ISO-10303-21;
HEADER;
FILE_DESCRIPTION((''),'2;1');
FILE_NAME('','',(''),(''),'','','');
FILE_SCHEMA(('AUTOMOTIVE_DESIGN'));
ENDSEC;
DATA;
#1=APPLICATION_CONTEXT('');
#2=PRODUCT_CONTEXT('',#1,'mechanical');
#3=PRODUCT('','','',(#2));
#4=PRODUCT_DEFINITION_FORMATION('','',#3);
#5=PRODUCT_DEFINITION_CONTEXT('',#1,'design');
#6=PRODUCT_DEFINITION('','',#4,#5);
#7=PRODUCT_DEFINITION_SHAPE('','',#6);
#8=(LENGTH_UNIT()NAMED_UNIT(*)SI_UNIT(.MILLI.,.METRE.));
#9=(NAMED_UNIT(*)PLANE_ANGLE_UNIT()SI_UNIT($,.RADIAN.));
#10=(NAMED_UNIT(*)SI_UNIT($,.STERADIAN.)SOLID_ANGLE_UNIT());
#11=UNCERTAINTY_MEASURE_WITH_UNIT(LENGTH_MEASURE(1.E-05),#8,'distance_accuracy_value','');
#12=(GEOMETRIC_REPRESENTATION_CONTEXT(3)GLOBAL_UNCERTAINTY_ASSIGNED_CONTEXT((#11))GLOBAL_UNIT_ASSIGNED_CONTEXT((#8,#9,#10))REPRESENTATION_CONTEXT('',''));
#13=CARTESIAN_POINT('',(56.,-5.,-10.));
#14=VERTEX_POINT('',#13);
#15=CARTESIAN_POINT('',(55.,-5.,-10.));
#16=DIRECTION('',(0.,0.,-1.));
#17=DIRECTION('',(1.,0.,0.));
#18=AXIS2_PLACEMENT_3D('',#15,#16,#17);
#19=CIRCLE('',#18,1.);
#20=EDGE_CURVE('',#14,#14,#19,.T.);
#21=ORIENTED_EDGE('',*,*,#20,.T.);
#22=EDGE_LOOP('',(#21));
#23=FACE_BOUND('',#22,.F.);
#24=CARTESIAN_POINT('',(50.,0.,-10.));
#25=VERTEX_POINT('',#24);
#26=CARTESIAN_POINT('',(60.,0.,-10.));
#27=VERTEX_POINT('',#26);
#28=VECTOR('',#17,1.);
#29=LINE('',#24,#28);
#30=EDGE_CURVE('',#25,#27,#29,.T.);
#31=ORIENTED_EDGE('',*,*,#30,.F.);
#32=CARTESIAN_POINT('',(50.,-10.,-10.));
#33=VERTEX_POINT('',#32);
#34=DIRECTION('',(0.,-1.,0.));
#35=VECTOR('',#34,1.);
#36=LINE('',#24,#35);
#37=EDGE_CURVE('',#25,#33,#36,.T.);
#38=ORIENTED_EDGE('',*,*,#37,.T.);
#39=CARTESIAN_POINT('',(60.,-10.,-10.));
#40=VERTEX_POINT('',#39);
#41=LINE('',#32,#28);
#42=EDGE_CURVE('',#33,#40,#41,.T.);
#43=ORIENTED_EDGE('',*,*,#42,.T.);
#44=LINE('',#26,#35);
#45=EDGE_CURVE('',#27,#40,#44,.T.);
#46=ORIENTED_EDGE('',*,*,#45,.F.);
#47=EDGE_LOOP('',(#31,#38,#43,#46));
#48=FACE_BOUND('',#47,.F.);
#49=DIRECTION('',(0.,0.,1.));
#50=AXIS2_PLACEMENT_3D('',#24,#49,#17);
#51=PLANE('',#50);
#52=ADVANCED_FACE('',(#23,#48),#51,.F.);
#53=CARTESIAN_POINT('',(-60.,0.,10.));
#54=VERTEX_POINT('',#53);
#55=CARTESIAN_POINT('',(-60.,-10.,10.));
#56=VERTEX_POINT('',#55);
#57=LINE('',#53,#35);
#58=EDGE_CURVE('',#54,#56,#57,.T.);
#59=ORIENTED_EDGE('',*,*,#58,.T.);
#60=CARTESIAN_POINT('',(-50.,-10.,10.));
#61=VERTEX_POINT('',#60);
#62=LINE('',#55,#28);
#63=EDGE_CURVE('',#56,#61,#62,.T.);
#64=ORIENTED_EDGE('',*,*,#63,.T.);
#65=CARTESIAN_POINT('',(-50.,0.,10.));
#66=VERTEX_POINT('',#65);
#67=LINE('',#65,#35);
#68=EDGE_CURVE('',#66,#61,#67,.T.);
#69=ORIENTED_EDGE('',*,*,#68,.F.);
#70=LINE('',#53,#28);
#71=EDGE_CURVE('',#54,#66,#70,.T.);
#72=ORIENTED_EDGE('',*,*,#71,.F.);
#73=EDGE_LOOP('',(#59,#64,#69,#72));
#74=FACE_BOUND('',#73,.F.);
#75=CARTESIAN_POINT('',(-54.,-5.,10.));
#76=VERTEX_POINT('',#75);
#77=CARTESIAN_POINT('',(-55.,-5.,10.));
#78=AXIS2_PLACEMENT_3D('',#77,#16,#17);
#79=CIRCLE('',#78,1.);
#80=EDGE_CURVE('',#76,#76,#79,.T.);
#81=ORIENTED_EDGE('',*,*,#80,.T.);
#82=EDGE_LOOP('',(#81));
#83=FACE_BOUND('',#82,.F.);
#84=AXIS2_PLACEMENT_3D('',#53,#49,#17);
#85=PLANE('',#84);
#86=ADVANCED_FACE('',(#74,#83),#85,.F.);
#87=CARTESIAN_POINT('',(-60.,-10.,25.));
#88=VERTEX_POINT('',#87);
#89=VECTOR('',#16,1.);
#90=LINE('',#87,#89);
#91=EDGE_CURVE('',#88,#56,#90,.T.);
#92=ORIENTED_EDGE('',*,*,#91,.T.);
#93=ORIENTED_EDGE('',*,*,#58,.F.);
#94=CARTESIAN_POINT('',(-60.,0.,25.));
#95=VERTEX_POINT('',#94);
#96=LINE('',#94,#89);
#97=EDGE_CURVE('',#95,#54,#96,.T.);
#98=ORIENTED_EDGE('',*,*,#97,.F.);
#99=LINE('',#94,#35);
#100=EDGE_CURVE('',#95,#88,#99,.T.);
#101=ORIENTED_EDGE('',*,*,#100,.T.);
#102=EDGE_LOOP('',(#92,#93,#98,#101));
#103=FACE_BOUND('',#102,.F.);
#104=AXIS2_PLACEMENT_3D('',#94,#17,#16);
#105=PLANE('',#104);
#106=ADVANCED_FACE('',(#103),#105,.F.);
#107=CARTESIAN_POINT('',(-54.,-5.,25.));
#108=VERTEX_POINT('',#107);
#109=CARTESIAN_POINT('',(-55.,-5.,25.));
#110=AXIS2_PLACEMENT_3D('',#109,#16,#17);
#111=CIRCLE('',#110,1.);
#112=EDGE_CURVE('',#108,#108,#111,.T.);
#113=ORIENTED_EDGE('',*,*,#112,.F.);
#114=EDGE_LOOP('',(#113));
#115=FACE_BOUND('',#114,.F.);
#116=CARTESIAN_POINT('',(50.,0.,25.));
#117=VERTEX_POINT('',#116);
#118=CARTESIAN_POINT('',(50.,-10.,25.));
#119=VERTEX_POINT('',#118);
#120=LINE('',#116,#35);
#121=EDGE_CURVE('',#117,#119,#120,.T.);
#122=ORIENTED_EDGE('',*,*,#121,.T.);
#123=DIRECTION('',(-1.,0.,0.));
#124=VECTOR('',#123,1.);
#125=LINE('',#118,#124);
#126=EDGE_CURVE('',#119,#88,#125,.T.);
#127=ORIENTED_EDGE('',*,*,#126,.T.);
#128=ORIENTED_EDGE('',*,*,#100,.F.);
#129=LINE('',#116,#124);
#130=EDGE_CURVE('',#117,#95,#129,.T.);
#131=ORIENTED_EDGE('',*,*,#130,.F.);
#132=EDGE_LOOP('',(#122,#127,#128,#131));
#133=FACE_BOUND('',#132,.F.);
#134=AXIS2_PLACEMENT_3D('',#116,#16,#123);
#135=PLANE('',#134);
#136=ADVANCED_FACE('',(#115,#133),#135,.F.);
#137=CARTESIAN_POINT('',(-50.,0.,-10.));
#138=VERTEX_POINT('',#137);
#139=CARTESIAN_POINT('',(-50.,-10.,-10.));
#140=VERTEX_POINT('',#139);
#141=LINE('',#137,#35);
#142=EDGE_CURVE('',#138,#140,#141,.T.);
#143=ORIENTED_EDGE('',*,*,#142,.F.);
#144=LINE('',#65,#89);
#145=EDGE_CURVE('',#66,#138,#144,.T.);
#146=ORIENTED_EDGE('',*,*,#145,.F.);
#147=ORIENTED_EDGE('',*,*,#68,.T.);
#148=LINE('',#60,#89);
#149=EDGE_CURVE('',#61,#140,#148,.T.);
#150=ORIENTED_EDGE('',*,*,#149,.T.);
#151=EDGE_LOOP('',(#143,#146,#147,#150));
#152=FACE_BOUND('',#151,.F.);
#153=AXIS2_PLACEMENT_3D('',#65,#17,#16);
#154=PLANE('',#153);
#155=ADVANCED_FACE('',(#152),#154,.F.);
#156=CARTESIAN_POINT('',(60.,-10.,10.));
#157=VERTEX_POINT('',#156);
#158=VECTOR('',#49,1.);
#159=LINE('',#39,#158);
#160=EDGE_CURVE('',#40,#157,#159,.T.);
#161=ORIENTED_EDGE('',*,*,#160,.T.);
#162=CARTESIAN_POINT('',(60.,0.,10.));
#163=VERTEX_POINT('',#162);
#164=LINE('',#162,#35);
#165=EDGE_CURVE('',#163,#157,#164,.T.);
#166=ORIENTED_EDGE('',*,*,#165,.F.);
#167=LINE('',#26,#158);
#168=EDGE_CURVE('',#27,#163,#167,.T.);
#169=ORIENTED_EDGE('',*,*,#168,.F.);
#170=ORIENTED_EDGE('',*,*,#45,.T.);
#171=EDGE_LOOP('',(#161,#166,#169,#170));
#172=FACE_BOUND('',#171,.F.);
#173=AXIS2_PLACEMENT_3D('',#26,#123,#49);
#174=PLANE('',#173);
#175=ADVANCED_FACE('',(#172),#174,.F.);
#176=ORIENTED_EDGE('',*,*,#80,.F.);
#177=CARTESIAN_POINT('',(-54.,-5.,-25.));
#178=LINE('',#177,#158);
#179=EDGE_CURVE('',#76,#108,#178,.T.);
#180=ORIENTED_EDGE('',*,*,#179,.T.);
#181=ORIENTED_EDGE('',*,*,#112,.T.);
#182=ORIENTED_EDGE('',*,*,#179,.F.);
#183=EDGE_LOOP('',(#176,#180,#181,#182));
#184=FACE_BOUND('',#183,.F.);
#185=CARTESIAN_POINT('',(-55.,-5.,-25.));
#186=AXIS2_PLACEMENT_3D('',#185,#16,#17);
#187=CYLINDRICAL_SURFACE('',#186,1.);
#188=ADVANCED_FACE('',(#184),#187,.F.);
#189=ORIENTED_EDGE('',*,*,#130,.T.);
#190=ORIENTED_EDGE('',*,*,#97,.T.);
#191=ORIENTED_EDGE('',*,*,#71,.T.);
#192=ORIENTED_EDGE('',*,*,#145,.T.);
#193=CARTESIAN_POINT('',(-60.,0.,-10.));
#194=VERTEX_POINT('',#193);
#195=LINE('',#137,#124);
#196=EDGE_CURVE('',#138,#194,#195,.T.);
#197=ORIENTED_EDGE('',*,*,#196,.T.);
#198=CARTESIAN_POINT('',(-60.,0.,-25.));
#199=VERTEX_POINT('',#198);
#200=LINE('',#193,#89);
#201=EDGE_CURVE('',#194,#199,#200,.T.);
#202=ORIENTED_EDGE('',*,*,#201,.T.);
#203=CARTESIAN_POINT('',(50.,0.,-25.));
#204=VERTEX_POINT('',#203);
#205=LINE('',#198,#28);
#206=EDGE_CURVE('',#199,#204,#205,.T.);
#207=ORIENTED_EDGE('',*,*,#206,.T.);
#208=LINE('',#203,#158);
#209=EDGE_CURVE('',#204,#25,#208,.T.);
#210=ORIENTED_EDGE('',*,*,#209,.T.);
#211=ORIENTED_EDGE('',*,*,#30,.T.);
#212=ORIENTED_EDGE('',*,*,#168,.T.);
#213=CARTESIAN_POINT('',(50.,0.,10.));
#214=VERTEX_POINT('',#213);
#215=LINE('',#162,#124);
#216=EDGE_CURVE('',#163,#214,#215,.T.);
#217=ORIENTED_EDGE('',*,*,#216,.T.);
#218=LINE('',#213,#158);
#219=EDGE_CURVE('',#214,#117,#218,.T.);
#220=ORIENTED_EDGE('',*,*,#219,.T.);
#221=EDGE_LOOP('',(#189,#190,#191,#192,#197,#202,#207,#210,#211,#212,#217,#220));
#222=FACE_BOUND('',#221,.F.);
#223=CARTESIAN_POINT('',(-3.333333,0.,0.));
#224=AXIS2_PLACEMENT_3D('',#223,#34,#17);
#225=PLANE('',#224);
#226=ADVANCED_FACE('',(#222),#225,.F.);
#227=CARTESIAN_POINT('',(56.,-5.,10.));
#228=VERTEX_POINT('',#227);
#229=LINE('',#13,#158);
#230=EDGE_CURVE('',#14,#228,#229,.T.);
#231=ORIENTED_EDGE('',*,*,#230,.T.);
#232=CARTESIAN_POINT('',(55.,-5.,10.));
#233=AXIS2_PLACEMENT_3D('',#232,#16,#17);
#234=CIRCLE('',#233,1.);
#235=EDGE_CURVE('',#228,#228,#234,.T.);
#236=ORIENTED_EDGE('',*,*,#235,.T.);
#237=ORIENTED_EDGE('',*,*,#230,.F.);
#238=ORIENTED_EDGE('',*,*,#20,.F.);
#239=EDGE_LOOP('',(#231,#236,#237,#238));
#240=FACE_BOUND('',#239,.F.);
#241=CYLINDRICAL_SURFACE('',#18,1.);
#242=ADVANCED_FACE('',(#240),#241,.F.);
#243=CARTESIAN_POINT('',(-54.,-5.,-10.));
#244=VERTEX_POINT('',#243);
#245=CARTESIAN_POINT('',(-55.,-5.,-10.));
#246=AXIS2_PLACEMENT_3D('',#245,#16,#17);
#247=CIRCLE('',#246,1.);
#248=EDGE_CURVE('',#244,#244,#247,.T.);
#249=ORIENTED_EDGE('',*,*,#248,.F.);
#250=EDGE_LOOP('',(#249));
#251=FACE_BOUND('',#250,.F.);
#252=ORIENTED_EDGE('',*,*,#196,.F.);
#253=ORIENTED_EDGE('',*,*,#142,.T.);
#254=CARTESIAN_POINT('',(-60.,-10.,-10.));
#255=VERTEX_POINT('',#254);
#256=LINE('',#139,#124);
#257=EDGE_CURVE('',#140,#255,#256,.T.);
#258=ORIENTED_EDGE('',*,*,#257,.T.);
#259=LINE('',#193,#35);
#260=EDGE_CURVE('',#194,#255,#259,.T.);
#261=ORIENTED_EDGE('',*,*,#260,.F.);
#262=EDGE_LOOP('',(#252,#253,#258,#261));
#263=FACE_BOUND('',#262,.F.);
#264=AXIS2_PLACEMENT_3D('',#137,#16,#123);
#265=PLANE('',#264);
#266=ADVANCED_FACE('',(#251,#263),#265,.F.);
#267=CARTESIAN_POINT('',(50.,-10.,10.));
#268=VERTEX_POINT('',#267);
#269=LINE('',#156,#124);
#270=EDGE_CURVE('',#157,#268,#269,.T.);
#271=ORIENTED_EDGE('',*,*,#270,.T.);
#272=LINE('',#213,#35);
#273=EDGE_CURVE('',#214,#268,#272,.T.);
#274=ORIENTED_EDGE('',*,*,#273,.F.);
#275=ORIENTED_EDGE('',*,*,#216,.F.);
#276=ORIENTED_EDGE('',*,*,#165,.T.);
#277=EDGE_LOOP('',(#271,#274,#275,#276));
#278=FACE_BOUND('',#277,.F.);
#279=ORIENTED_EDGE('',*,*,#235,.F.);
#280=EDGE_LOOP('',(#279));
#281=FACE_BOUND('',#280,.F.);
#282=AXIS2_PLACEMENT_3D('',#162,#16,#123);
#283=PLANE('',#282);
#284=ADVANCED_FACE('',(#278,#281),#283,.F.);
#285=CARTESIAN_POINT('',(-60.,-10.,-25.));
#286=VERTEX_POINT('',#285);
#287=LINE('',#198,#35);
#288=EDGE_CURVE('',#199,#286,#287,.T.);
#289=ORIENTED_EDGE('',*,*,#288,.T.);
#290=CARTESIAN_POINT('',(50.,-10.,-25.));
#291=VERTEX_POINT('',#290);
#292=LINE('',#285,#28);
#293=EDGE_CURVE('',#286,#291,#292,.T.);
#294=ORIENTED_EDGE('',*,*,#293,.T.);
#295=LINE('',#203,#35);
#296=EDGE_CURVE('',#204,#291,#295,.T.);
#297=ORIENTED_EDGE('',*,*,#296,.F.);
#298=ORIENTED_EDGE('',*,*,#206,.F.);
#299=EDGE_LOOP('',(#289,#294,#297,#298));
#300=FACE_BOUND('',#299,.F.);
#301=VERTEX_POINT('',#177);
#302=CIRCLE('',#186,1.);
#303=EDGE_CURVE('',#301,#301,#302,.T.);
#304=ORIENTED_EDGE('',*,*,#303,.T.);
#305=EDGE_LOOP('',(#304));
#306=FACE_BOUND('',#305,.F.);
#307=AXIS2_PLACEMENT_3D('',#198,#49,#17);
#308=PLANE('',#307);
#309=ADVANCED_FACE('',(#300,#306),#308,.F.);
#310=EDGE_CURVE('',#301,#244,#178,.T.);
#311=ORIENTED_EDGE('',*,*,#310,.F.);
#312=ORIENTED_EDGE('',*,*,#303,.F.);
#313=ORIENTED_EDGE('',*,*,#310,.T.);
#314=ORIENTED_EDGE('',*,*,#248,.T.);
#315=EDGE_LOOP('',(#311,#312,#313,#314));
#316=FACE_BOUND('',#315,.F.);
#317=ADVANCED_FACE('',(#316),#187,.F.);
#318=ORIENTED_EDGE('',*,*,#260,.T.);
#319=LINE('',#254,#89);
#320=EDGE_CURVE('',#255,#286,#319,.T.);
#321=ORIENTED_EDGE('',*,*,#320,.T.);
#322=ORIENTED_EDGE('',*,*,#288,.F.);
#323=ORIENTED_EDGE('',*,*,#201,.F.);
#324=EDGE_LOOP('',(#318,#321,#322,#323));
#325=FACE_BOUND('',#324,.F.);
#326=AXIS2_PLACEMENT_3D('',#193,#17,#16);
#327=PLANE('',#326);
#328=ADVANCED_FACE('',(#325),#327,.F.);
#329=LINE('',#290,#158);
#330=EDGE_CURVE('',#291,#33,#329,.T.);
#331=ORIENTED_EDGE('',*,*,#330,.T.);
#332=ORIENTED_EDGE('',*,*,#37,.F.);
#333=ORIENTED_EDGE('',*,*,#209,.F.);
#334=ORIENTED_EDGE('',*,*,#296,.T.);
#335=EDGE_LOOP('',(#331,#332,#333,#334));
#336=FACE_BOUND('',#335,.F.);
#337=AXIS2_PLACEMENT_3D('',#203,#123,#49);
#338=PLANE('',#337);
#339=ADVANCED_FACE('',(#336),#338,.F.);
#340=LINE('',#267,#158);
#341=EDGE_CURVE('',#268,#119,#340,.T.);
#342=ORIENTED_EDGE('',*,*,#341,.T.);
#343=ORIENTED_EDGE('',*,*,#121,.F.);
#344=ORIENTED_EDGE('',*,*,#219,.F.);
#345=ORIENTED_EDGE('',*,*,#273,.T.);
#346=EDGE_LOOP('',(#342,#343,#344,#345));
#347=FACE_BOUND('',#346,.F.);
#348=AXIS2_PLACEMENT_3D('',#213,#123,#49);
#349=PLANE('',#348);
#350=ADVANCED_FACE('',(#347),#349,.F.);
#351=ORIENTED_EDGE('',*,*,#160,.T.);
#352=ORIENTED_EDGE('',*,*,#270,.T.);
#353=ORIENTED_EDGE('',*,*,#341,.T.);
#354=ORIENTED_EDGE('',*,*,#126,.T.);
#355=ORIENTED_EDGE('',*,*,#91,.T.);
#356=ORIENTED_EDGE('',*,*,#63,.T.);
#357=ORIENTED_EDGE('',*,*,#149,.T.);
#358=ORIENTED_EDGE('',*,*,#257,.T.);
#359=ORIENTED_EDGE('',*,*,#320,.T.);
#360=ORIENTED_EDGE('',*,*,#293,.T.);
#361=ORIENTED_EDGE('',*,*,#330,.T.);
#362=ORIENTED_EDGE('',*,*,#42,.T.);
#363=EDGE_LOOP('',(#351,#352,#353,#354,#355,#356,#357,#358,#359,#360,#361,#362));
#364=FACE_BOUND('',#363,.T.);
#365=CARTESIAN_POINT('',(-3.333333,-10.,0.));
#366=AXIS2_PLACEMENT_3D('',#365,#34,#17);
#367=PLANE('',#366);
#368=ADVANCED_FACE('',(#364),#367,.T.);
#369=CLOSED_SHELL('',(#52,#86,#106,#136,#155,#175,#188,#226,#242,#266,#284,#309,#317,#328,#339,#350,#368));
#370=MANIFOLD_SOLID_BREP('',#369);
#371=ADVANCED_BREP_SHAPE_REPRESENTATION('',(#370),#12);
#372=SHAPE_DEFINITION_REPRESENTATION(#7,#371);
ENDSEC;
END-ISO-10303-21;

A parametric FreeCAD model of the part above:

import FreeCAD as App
import Part
import Sketcher
Q = App.Units.Quantity

doc = App.newDocument("Part")
body = doc.addObject("PartDesign::Body", "Body")

# Sketch on XZ plane
sketch1 = doc.addObject("Sketcher::SketchObject", "Sketch")
body.addObject(sketch1)
sketch1.AttachmentSupport = (doc.XZ_Plane, [""])
sketch1.MapMode = "FlatFace"
sketch1.addGeometry([
    Part.LineSegment(App.Vector(-60, -10, 0), App.Vector(-60, -25, 0)),  # 0
    Part.LineSegment(App.Vector(-60, -25, 0), App.Vector(50, -25, 0)),  # 1
    Part.LineSegment(App.Vector(50, -25, 0), App.Vector(50, -10, 0)),  # 2
    Part.LineSegment(App.Vector(50, -10, 0), App.Vector(60, -10, 0)),  # 3
    Part.LineSegment(App.Vector(60, -10, 0), App.Vector(60, 10, 0)),  # 4
    Part.LineSegment(App.Vector(60, 10, 0), App.Vector(50, 10, 0)),  # 5
    Part.LineSegment(App.Vector(50, 10, 0), App.Vector(50, 25, 0)),  # 6
    Part.LineSegment(App.Vector(50, 25, 0), App.Vector(-60, 25, 0)),  # 7
    Part.LineSegment(App.Vector(-60, 25, 0), App.Vector(-60, 10, 0)),  # 8
    Part.LineSegment(App.Vector(-60, 10, 0), App.Vector(-50, 10, 0)),  # 9
    Part.LineSegment(App.Vector(-50, 10, 0), App.Vector(-50, -10, 0)),  # 10
    Part.LineSegment(App.Vector(-50, -10, 0), App.Vector(-60, -10, 0)),  # 11
], False)
sketch1.addConstraint([
    Sketcher.Constraint("Coincident", 0, 2, 1, 1),
    Sketcher.Constraint("Coincident", 1, 2, 2, 1),
    Sketcher.Constraint("Coincident", 2, 2, 3, 1),
    Sketcher.Constraint("Coincident", 3, 2, 4, 1),
    Sketcher.Constraint("Coincident", 4, 2, 5, 1),
    Sketcher.Constraint("Coincident", 5, 2, 6, 1),
    Sketcher.Constraint("Coincident", 6, 2, 7, 1),
    Sketcher.Constraint("Coincident", 7, 2, 8, 1),
    Sketcher.Constraint("Coincident", 8, 2, 9, 1),
    Sketcher.Constraint("Coincident", 9, 2, 10, 1),
    Sketcher.Constraint("Coincident", 10, 2, 11, 1),
    Sketcher.Constraint("Coincident", 11, 2, 0, 1),
    Sketcher.Constraint("Vertical", 0),
    Sketcher.Constraint("Horizontal", 1),
    Sketcher.Constraint("Vertical", 2),
    Sketcher.Constraint("Horizontal", 3),
    Sketcher.Constraint("Vertical", 4),
    Sketcher.Constraint("Horizontal", 5),
    Sketcher.Constraint("Vertical", 6),
    Sketcher.Constraint("Horizontal", 7),
    Sketcher.Constraint("Vertical", 8),
    Sketcher.Constraint("Horizontal", 9),
    Sketcher.Constraint("Vertical", 10),
    Sketcher.Constraint("Horizontal", 11),
    Sketcher.Constraint("Symmetric", 3, 2, 8, 2, -1, 1),
    Sketcher.Constraint("Symmetric", 5, 2, 10, 2, -1, 1),
    Sketcher.Constraint("Symmetric", 2, 2, 10, 2, -2),
    Sketcher.Constraint("Symmetric", 0, 2, 7, 2, -1),
    Sketcher.Constraint("DistanceX", 1, 1, 1, 2, Q("110 mm")),
    Sketcher.Constraint("DistanceX", 3, 1, 3, 2, Q("10 mm")),
    Sketcher.Constraint("DistanceY", 0, 2, 0, 1, Q("15 mm")),
    Sketcher.Constraint("DistanceY", 4, 1, 4, 2, Q("20 mm")),
])
pad1 = doc.addObject("PartDesign::Pad", "Pad")
body.addObject(pad1)
pad1.Profile = sketch1
pad1.Length = 10

# Sketch on XY plane
sketch2 = doc.addObject("Sketcher::SketchObject", "Sketch001")
body.addObject(sketch2)
sketch2.AttachmentSupport = (doc.XY_Plane, [""])
sketch2.MapMode = "FlatFace"
sketch2.AttachmentOffset = App.Placement(App.Vector(0, 0, -25), App.Rotation())
sketch2.addGeometry(Part.Circle(App.Vector(-55, -5, 0), App.Vector(0, 0, 1), 1), False)
sketch2.addConstraint([
    Sketcher.Constraint("Diameter", 0, Q("2 mm")),
    Sketcher.Constraint("DistanceX", 0, 3, -1, 1, Q("55 mm")),
    Sketcher.Constraint("DistanceY", 0, 3, -1, 1, Q("5 mm")),
])
pocket1 = doc.addObject("PartDesign::Pocket", "Pocket")
body.addObject(pocket1)
pocket1.Profile = sketch2
pocket1.Length = 52.9
pocket1.Reversed = True

# Sketch on XY plane
sketch3 = doc.addObject("Sketcher::SketchObject", "Sketch002")
body.addObject(sketch3)
sketch3.AttachmentSupport = (doc.XY_Plane, [""])
sketch3.MapMode = "FlatFace"
sketch3.AttachmentOffset = App.Placement(App.Vector(0, 0, -10), App.Rotation())
sketch3.addGeometry(Part.Circle(App.Vector(55, -5, 0), App.Vector(0, 0, 1), 1), False)
sketch3.addConstraint([
    Sketcher.Constraint("Diameter", 0, Q("2 mm")),
    Sketcher.Constraint("DistanceX", -1, 1, 0, 3, Q("55 mm")),
    Sketcher.Constraint("DistanceY", 0, 3, -1, 1, Q("5 mm")),
])
pocket2 = doc.addObject("PartDesign::Pocket", "Pocket001")
body.addObject(pocket2)
pocket2.Profile = sketch3
pocket2.Length = 41.9
pocket2.Reversed = True

doc.recompute()
